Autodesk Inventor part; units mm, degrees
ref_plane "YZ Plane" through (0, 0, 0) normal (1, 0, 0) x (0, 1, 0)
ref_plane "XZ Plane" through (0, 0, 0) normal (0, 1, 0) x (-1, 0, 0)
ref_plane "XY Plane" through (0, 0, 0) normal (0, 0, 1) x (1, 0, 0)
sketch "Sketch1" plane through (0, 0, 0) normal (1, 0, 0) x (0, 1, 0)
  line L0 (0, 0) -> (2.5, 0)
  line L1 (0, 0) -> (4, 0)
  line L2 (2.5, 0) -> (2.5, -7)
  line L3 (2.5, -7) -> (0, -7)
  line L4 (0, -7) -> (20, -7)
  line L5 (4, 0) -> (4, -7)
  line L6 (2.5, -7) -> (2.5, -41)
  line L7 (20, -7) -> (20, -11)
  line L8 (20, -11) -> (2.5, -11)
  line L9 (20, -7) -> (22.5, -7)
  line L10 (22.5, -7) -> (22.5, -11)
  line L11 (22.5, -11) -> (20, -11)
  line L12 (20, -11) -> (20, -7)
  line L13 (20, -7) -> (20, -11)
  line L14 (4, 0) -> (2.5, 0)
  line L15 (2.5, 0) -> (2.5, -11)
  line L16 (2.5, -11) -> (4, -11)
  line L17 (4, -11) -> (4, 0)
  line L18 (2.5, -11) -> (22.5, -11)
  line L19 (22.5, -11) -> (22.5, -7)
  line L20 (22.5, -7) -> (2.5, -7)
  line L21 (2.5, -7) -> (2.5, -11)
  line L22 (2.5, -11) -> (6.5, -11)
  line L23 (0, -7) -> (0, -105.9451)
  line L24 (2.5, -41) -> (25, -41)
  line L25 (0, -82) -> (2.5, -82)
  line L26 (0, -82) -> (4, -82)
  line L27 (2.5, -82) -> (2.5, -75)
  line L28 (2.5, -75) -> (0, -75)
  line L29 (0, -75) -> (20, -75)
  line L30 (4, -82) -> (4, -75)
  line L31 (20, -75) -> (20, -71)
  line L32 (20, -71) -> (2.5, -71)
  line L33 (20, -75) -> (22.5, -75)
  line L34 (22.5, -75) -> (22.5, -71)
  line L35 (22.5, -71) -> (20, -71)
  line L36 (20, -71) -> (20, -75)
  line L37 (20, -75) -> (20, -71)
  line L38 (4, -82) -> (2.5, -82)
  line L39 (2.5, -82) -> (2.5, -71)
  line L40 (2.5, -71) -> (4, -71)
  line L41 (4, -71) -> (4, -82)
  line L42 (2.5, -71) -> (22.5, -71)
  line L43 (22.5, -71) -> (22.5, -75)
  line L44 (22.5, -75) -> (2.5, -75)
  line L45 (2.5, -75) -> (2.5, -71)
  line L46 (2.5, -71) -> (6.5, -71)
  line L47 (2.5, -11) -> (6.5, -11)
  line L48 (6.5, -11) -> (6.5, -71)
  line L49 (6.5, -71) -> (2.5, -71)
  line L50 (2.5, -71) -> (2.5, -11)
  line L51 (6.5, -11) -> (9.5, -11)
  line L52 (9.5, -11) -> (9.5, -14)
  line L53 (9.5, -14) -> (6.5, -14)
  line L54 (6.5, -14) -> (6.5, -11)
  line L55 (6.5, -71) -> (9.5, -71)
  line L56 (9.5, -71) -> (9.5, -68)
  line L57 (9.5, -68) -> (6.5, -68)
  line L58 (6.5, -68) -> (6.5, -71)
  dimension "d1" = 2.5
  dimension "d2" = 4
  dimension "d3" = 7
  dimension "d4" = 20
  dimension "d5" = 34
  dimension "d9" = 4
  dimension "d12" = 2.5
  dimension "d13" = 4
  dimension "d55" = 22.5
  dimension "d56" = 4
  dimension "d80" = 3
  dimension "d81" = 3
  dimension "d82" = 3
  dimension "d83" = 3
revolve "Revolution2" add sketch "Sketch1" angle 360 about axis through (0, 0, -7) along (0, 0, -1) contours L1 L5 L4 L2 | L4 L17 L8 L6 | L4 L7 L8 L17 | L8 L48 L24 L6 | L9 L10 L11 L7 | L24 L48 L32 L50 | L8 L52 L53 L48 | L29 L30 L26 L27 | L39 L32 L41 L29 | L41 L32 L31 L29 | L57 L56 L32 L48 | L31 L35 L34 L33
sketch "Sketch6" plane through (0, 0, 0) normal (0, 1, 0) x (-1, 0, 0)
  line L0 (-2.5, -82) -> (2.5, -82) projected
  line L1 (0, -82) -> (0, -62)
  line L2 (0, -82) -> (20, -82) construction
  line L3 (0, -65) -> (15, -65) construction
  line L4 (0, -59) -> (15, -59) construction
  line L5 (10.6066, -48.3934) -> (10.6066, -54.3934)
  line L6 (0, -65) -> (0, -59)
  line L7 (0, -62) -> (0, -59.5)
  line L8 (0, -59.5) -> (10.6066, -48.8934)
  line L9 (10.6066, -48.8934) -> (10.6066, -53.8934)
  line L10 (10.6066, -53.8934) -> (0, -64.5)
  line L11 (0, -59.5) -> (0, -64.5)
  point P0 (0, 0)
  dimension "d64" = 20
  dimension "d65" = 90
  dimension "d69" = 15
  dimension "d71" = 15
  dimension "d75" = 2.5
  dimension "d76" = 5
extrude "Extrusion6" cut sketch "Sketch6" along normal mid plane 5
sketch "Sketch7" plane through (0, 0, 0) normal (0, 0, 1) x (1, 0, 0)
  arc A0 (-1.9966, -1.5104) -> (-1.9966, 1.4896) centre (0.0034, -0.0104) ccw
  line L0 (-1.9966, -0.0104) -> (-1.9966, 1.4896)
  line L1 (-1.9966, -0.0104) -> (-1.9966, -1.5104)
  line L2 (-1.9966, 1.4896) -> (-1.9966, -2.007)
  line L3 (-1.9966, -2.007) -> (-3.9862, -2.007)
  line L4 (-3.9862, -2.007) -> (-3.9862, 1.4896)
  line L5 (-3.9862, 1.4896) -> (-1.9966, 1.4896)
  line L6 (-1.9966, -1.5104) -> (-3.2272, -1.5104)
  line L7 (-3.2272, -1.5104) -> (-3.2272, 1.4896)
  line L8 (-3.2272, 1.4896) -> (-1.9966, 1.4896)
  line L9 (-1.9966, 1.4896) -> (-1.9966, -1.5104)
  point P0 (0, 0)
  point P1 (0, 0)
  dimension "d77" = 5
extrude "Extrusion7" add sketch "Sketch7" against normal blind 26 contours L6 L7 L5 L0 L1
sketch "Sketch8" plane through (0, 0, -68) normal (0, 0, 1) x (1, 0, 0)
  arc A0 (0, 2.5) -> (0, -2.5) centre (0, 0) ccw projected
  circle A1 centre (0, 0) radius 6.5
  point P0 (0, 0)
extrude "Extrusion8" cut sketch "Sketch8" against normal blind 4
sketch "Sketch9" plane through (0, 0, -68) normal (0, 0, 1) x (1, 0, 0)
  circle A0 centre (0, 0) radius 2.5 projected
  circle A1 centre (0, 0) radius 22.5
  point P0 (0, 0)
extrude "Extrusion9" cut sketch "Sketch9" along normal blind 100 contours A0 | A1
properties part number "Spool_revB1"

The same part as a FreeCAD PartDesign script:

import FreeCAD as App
import Part
import Sketcher
Q = App.Units.Quantity


def add_polygon(sketch, points):
    """Adds a closed chain of lines whose ends are joined by coincident constraints."""
    first, n = sketch.GeometryCount, len(points)
    for a, b in zip(points, points[1:] + points[:1]):
        sketch.addGeometry(Part.LineSegment(App.Vector(*a, 0), App.Vector(*b, 0)), False)
    for i in range(n):
        sketch.addConstraint(Sketcher.Constraint("Coincident", first + i, 2, first + (i + 1) % n, 1))

doc = App.newDocument("Part")
body = doc.addObject("PartDesign::Body", "Body")
body.AllowCompound = True

sketch1 = body.newObject("Sketcher::SketchObject", "Sketch")
sketch1.AttachmentSupport = (doc.getObject("YZ_Plane"), [""])
sketch1.MapMode = "FlatFace"
add_polygon(sketch1, [(4, 0), (2.5, 0), (2.5, -82), (4, -82), (4, -75), (22.5, -75), (22.5, -71), (9.5, -71), (9.5, -68), (6.5, -68), (6.5, -14), (9.5, -14), (9.5, -11), (22.5, -11), (22.5, -7), (4, -7)])
sketch1.addConstraint(Sketcher.Constraint("Horizontal", 0))
sketch1.addConstraint(Sketcher.Constraint("Vertical", 1))
sketch1.addConstraint(Sketcher.Constraint("Horizontal", 2))
sketch1.addConstraint(Sketcher.Constraint("Vertical", 3))
sketch1.addConstraint(Sketcher.Constraint("Horizontal", 4))
sketch1.addConstraint(Sketcher.Constraint("Vertical", 5))
sketch1.addConstraint(Sketcher.Constraint("Horizontal", 6))
sketch1.addConstraint(Sketcher.Constraint("Vertical", 7))
sketch1.addConstraint(Sketcher.Constraint("Horizontal", 8))
sketch1.addConstraint(Sketcher.Constraint("Vertical", 9))
sketch1.addConstraint(Sketcher.Constraint("Horizontal", 10))
sketch1.addConstraint(Sketcher.Constraint("Vertical", 11))
sketch1.addConstraint(Sketcher.Constraint("Horizontal", 12))
sketch1.addConstraint(Sketcher.Constraint("Vertical", 13))
sketch1.addConstraint(Sketcher.Constraint("Horizontal", 14))
sketch1.addConstraint(Sketcher.Constraint("Vertical", 15))
sketch1.addConstraint(Sketcher.Constraint("PointOnObject", 0, 2, -1))
sketch1.addConstraint(Sketcher.Constraint("Vertical", 7, 2, 10, 2))
sketch1.addConstraint(Sketcher.Constraint("Vertical", 5, 2, 12, 2))
sketch1.addConstraint(Sketcher.Constraint("Vertical", 3, 2, 14, 2))
sketch1.addConstraint(Sketcher.Constraint("Equal", 10, 7))
sketch1.addConstraint(Sketcher.Constraint("Equal", 7, 11))
sketch1.addConstraint(Sketcher.Constraint("Equal", 5, 13))
sketch1.addConstraint(Sketcher.Constraint("Equal", 3, 15))
sketch1.addConstraint(Sketcher.Constraint("DistanceX", 8, 2, 8, 1, 3.0))
sketch1.addConstraint(Sketcher.Constraint("DistanceY", 3, 1, 3, 2, 7.0))
sketch1.addConstraint(Sketcher.Constraint("DistanceY", 5, 1, 5, 2, 4.0))
sketch1.addConstraint(Sketcher.Constraint("DistanceX", -1, 1, 2, 2, 4.0))
sketch1.addConstraint(Sketcher.Constraint("DistanceX", 1, 2, 4, 2, 20.0))
sketch1.addConstraint(Sketcher.Constraint("DistanceX", 1, 2, 6, 2, 7.0))
sketch1.addConstraint(Sketcher.Constraint("DistanceX", -1, 1, 0, 2, 2.5))
sketch1.addConstraint(Sketcher.Constraint("DistanceY", 1, 2, 1, 1, 82.0))
revolution = body.newObject("PartDesign::Revolution", "Revolution")
revolution.Profile = sketch1
revolution.ReferenceAxis = (sketch1, ["V_Axis"])
revolution.Angle = 360

sketch2 = body.newObject("Sketcher::SketchObject", "Sketch001")
sketch2.AttachmentSupport = (doc.getObject("XZ_Plane"), [""])
sketch2.MapMode = "FlatFace"
add_polygon(sketch2, [(0, -60), (0, -64), (-11, -54), (-11, -49)])
sketch2.addConstraint(Sketcher.Constraint("Vertical", 0))
sketch2.addConstraint(Sketcher.Constraint("Vertical", 2))
sketch2.addConstraint(Sketcher.Constraint("PointOnObject", 0, 2, -2))
sketch2.addConstraint(Sketcher.Constraint("Parallel", 1, 3))
sketch2.addConstraint(Sketcher.Constraint("DistanceY", 0, 2, 0, 1, 5.0))
sketch2.addConstraint(Sketcher.Constraint("Distance", 1, 15.0))
sketch2.addConstraint(Sketcher.Constraint("Angle", 1, Q("135 deg")))
sketch2.addConstraint(Sketcher.Constraint("DistanceY", 0, 2, -1, 1, 64.5))
pocket1 = body.newObject("PartDesign::Pocket", "Pocket")
pocket1.Profile = sketch2
pocket1.Length = 5
pocket1.Midplane = True

sketch3 = body.newObject("Sketcher::SketchObject", "Sketch002")
sketch3.AttachmentSupport = (doc.getObject("XY_Plane"), [""])
sketch3.MapMode = "FlatFace"
add_polygon(sketch3, [(-3.2, -1.5), (-2, -1.5), (-2, 1.5), (-3.2, 1.5)])
sketch3.addConstraint(Sketcher.Constraint("Horizontal", 0))
sketch3.addConstraint(Sketcher.Constraint("Vertical", 1))
sketch3.addConstraint(Sketcher.Constraint("Horizontal", 2))
sketch3.addConstraint(Sketcher.Constraint("Vertical", 3))
sketch3.addConstraint(Sketcher.Constraint("DistanceY", 1, 1, 1, 2, 3.0))
sketch3.addConstraint(Sketcher.Constraint("DistanceX", 0, 1, 0, 2, 1.2306))
sketch3.addConstraint(Sketcher.Constraint("DistanceX", 0, 2, -1, 1, 1.9966))
sketch3.addConstraint(Sketcher.Constraint("DistanceY", 0, 2, -1, 1, 1.5104))
pad1 = body.newObject("PartDesign::Pad", "Pad")
pad1.Profile = sketch3
pad1.Length = 26
pad1.Reversed = True

sketch4 = body.newObject("Sketcher::SketchObject", "Sketch003")
sketch4.AttachmentSupport = (doc.getObject("XY_Plane"), [""])
sketch4.MapMode = "FlatFace"
sketch4.AttachmentOffset = App.Placement(App.Vector(0, 0, -68), App.Rotation())
sketch4.addGeometry(Part.Circle(App.Vector(0, 0, 0), App.Vector(0, 0, 1), 6), False)
sketch4.addConstraint(Sketcher.Constraint("Coincident", 0, 3, -1, 1))
sketch4.addConstraint(Sketcher.Constraint("Diameter", 0, 13.0))
pocket2 = body.newObject("PartDesign::Pocket", "Pocket001")
pocket2.Profile = sketch4
pocket2.Length = 4

sketch5 = body.newObject("Sketcher::SketchObject", "Sketch004")
sketch5.AttachmentSupport = (doc.getObject("XY_Plane"), [""])
sketch5.MapMode = "FlatFace"
sketch5.AttachmentOffset = App.Placement(App.Vector(0, 0, -68), App.Rotation())
sketch5.addGeometry(Part.Circle(App.Vector(0, 0, 0), App.Vector(0, 0, 1), 22), False)
sketch5.addConstraint(Sketcher.Constraint("Coincident", 0, 3, -1, 1))
sketch5.addConstraint(Sketcher.Constraint("Diameter", 0, 45.0))
pocket3 = body.newObject("PartDesign::Pocket", "Pocket002")
pocket3.Profile = sketch5
pocket3.Length = 100
pocket3.Reversed = True

doc.recompute()
